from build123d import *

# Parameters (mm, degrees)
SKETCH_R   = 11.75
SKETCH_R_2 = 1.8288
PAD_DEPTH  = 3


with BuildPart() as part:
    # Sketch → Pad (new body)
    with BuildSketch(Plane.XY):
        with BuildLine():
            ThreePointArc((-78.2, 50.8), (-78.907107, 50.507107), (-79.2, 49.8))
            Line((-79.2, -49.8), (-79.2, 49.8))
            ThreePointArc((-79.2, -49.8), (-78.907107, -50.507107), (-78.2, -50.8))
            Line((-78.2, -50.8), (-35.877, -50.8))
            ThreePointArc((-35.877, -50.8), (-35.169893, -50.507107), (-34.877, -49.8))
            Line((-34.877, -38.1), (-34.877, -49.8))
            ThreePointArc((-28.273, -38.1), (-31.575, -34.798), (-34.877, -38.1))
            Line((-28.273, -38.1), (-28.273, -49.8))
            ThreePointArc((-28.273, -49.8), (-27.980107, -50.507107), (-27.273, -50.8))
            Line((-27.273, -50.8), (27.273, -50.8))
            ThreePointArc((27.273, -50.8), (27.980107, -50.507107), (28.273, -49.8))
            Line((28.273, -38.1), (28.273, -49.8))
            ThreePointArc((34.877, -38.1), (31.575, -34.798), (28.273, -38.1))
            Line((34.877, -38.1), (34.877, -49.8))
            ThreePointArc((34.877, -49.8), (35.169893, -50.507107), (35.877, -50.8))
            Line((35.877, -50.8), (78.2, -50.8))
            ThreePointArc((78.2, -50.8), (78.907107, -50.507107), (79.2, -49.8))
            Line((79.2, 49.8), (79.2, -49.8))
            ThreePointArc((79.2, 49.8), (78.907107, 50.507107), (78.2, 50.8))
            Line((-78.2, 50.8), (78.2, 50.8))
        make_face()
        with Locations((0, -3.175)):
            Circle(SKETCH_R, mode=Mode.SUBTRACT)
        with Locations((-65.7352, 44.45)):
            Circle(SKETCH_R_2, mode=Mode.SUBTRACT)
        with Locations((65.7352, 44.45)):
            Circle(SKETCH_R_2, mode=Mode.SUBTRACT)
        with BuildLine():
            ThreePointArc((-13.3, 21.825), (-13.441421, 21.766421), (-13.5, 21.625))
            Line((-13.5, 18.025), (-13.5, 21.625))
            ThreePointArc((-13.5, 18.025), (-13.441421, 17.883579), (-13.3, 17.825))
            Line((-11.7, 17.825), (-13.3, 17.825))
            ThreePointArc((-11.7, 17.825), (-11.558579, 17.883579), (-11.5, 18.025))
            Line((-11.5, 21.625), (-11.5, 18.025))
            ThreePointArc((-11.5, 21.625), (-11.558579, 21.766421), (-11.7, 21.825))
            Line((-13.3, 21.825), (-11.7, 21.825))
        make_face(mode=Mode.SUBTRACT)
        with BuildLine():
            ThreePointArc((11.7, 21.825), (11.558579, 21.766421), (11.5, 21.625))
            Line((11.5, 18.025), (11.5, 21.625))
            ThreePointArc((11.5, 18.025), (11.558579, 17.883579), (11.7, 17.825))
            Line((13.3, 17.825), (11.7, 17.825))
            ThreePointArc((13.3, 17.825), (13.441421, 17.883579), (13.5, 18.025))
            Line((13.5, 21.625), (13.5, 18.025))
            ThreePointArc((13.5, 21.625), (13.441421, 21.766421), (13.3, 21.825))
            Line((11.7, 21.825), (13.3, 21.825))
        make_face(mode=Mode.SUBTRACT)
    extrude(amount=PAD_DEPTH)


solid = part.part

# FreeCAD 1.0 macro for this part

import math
import FreeCAD as App
import Part
import Sketcher

V = App.Vector
Q = App.Units.Quantity

doc = App.newDocument("Part")
body = doc.addObject("PartDesign::Body", "Body")

sketch1 = body.newObject("Sketcher::SketchObject", "Sketch")
sketch1.AttachmentSupport = (doc.getObject("XY_Plane"), [""])
sketch1.MapMode = "FlatFace"
sketch1.addGeometry([
    Part.ArcOfCircle(Part.Circle(V(-78.200001, 49.800001, 0), V(0, 0, 1), 0.999999), math.radians(89.999957), math.radians(180.000043)),
    Part.LineSegment(V(-79.2, 49.8, 0), V(-79.2, -49.8, 0)),
    Part.ArcOfCircle(Part.Circle(V(-78.200001, -49.800001, 0), V(0, 0, 1), 0.999999), math.radians(179.999957), math.radians(270.000043)),
    Part.LineSegment(V(-78.2, -50.8, 0), V(-35.877, -50.8, 0)),
    Part.ArcOfCircle(Part.Circle(V(-35.876999, -49.800001, 0), V(0, 0, 1), 0.999999), math.radians(-90.000043), math.radians(0.000043)),
    Part.LineSegment(V(-34.877, -49.8, 0), V(-34.877, -38.1, 0)),
    Part.ArcOfCircle(Part.Circle(V(-31.575, -38.1, 0), V(0, 0, 1), 3.302), math.radians(0), math.radians(180)),
    Part.LineSegment(V(-28.273, -38.1, 0), V(-28.273, -49.8, 0)),
    Part.ArcOfCircle(Part.Circle(V(-27.273001, -49.800001, 0), V(0, 0, 1), 0.999999), math.radians(179.999957), math.radians(270.000043)),
    Part.LineSegment(V(-27.273, -50.8, 0), V(27.273, -50.8, 0)),
    Part.ArcOfCircle(Part.Circle(V(27.273001, -49.800001, 0), V(0, 0, 1), 0.999999), math.radians(-90.000043), math.radians(0.000043)),
    Part.LineSegment(V(28.273, -49.8, 0), V(28.273, -38.1, 0)),
    Part.ArcOfCircle(Part.Circle(V(31.575, -38.1, 0), V(0, 0, 1), 3.302), math.radians(0), math.radians(180)),
    Part.LineSegment(V(34.877, -38.1, 0), V(34.877, -49.8, 0)),
    Part.ArcOfCircle(Part.Circle(V(35.876999, -49.800001, 0), V(0, 0, 1), 0.999999), math.radians(179.999957), math.radians(270.000043)),
    Part.LineSegment(V(35.877, -50.8, 0), V(78.2, -50.8, 0)),
    Part.ArcOfCircle(Part.Circle(V(78.200001, -49.800001, 0), V(0, 0, 1), 0.999999), math.radians(-90.000043), math.radians(0.000043)),
    Part.LineSegment(V(79.2, -49.8, 0), V(79.2, 49.8, 0)),
    Part.ArcOfCircle(Part.Circle(V(78.200001, 49.800001, 0), V(0, 0, 1), 0.999999), math.radians(-0.000043), math.radians(90.000043)),
    Part.LineSegment(V(78.2, 50.8, 0), V(-78.2, 50.8, 0)),
    Part.Circle(V(0, -3.175, 0), V(0, 0, 1), 11.75),
    Part.ArcOfCircle(Part.Circle(V(-13.299999, 21.624999, 0), V(0, 0, 1), 0.200001), math.radians(90.000348), math.radians(179.999652)),
    Part.LineSegment(V(-13.3, 21.825, 0), V(-11.7, 21.825, 0)),
    Part.ArcOfCircle(Part.Circle(V(-11.700001, 21.624999, 0), V(0, 0, 1), 0.200001), math.radians(0.000348), math.radians(89.999652)),
    Part.LineSegment(V(-11.5, 21.625, 0), V(-11.5, 18.025, 0)),
    Part.ArcOfCircle(Part.Circle(V(-11.700001, 18.025001, 0), V(0, 0, 1), 0.200001), math.radians(-89.999652), math.radians(-0.000348)),
    Part.LineSegment(V(-11.7, 17.825, 0), V(-13.3, 17.825, 0)),
    Part.ArcOfCircle(Part.Circle(V(-13.299999, 18.025001, 0), V(0, 0, 1), 0.200001), math.radians(-179.999652), math.radians(-90.000348)),
    Part.LineSegment(V(-13.5, 18.025, 0), V(-13.5, 21.625, 0)),
    Part.Circle(V(-65.7352, 44.45, 0), V(0, 0, 1), 1.8288),
    Part.ArcOfCircle(Part.Circle(V(11.700001, 21.624999, 0), V(0, 0, 1), 0.200001), math.radians(90.000348), math.radians(179.999652)),
    Part.LineSegment(V(11.7, 21.825, 0), V(13.3, 21.825, 0)),
    Part.ArcOfCircle(Part.Circle(V(13.299999, 21.624999, 0), V(0, 0, 1), 0.200001), math.radians(0.000348), math.radians(89.999652)),
    Part.LineSegment(V(13.5, 21.625, 0), V(13.5, 18.025, 0)),
    Part.ArcOfCircle(Part.Circle(V(13.299999, 18.025001, 0), V(0, 0, 1), 0.200001), math.radians(-89.999652), math.radians(-0.000348)),
    Part.LineSegment(V(13.3, 17.825, 0), V(11.7, 17.825, 0)),
    Part.ArcOfCircle(Part.Circle(V(11.700001, 18.025001, 0), V(0, 0, 1), 0.200001), math.radians(-179.999652), math.radians(-90.000348)),
    Part.LineSegment(V(11.5, 18.025, 0), V(11.5, 21.625, 0)),
    Part.Circle(V(65.7352, 44.45, 0), V(0, 0, 1), 1.8288),
], False)
sketch1.addConstraint([
    Sketcher.Constraint("Tangent", 0, 2, 1, 1),
    Sketcher.Constraint("Tangent", 1, 2, 2, 1),
    Sketcher.Constraint("Tangent", 2, 2, 3, 1),
    Sketcher.Constraint("Tangent", 3, 2, 4, 1),
    Sketcher.Constraint("Tangent", 4, 2, 5, 1),
    Sketcher.Constraint("Tangent", 5, 2, 6, 2),
    Sketcher.Constraint("Tangent", 6, 1, 7, 1),
    Sketcher.Constraint("Tangent", 7, 2, 8, 1),
    Sketcher.Constraint("Tangent", 8, 2, 9, 1),
    Sketcher.Constraint("Tangent", 9, 2, 10, 1),
    Sketcher.Constraint("Tangent", 10, 2, 11, 1),
    Sketcher.Constraint("Tangent", 11, 2, 12, 2),
    Sketcher.Constraint("Tangent", 12, 1, 13, 1),
    Sketcher.Constraint("Tangent", 13, 2, 14, 1),
    Sketcher.Constraint("Tangent", 14, 2, 15, 1),
    Sketcher.Constraint("Tangent", 15, 2, 16, 1),
    Sketcher.Constraint("Tangent", 16, 2, 17, 1),
    Sketcher.Constraint("Tangent", 17, 2, 18, 1),
    Sketcher.Constraint("Tangent", 18, 2, 19, 1),
    Sketcher.Constraint("Tangent", 19, 2, 0, 1),
    Sketcher.Constraint("Coincident", 21, 1, 22, 1),
    Sketcher.Constraint("Coincident", 22, 2, 23, 2),
    Sketcher.Constraint("Coincident", 23, 1, 24, 1),
    Sketcher.Constraint("Coincident", 24, 2, 25, 2),
    Sketcher.Constraint("Coincident", 25, 1, 26, 1),
    Sketcher.Constraint("Coincident", 26, 2, 27, 2),
    Sketcher.Constraint("Coincident", 27, 1, 28, 1),
    Sketcher.Constraint("Coincident", 28, 2, 21, 2),
    Sketcher.Constraint("Coincident", 30, 1, 31, 1),
    Sketcher.Constraint("Coincident", 31, 2, 32, 2),
    Sketcher.Constraint("Coincident", 32, 1, 33, 1),
    Sketcher.Constraint("Coincident", 33, 2, 34, 2),
    Sketcher.Constraint("Coincident", 34, 1, 35, 1),
    Sketcher.Constraint("Coincident", 35, 2, 36, 2),
    Sketcher.Constraint("Coincident", 36, 1, 37, 1),
    Sketcher.Constraint("Coincident", 37, 2, 30, 2),
    Sketcher.Constraint("Vertical", 1),
    Sketcher.Constraint("Horizontal", 3),
    Sketcher.Constraint("Vertical", 5),
    Sketcher.Constraint("Vertical", 7),
    Sketcher.Constraint("Horizontal", 9),
    Sketcher.Constraint("Vertical", 11),
    Sketcher.Constraint("Vertical", 13),
    Sketcher.Constraint("Horizontal", 15),
    Sketcher.Constraint("Vertical", 17),
    Sketcher.Constraint("Horizontal", 19),
    Sketcher.Constraint("Horizontal", 22),
    Sketcher.Constraint("Vertical", 24),
    Sketcher.Constraint("Horizontal", 26),
    Sketcher.Constraint("Vertical", 28),
    Sketcher.Constraint("Horizontal", 31),
    Sketcher.Constraint("Vertical", 33),
    Sketcher.Constraint("Horizontal", 35),
    Sketcher.Constraint("Vertical", 37),
    Sketcher.Constraint("Equal", 0, 2),
    Sketcher.Constraint("Equal", 2, 4),
    Sketcher.Constraint("Equal", 4, 8),
    Sketcher.Constraint("Equal", 8, 10),
    Sketcher.Constraint("Equal", 6, 12),
    Sketcher.Constraint("Equal", 10, 14),
    Sketcher.Constraint("Equal", 14, 16),
    Sketcher.Constraint("Equal", 16, 18),
    Sketcher.Constraint("Equal", 21, 23),
    Sketcher.Constraint("Equal", 23, 25),
    Sketcher.Constraint("Equal", 25, 27),
    Sketcher.Constraint("Equal", 27, 30),
    Sketcher.Constraint("Equal", 30, 32),
    Sketcher.Constraint("Equal", 32, 34),
    Sketcher.Constraint("Equal", 34, 36),
    Sketcher.Constraint("Equal", 29, 38),
    Sketcher.Constraint("Symmetric", 0, 3, 16, 3, -1, 1),
    Sketcher.Constraint("Symmetric", 6, 3, 12, 3, -2),
    Sketcher.Constraint("Symmetric", 23, 3, 30, 3, -2),
    Sketcher.Constraint("Symmetric", 27, 3, 34, 3, -2),
    Sketcher.Constraint("Symmetric", 29, 3, 38, 3, -2),
    Sketcher.Constraint("PointOnObject", 20, 3, -2),
    Sketcher.Constraint("Horizontal", 4, 3, 8, 3),
    Sketcher.Constraint("Horizontal", 10, 3, 14, 3),
    Sketcher.Constraint("Horizontal", 32, 3, 23, 1),
    Sketcher.Constraint("Horizontal", 36, 3, 24, 2),
    Sketcher.Constraint("Horizontal", 24, 2, 27, 1),
    Sketcher.Constraint("Horizontal", 23, 1, 28, 2),
    Sketcher.Constraint("Horizontal", 28, 2, 32, 1),
    Sketcher.Constraint("Horizontal", 27, 1, 33, 2),
    Sketcher.Constraint("Horizontal", 33, 2, 36, 1),
    Sketcher.Constraint("Horizontal", 32, 1, 37, 2),
    Sketcher.Constraint("Vertical", 27, 3, 21, 1),
    Sketcher.Constraint("Vertical", 25, 3, 22, 2),
    Sketcher.Constraint("Vertical", 22, 2, 25, 1),
    Sketcher.Constraint("Vertical", 21, 1, 26, 2),
    Sketcher.Constraint("Vertical", 36, 3, 30, 1),
    Sketcher.Constraint("Vertical", 34, 3, 31, 2),
    Sketcher.Constraint("Vertical", 31, 2, 34, 1),
    Sketcher.Constraint("Vertical", 30, 1, 35, 2),
    Sketcher.Constraint("Radius", 0, Q("0.999999 mm")),
    Sketcher.Constraint("Diameter", 20, Q("23.5 mm")),
    Sketcher.Constraint("Radius", 21, Q("0.200001 mm")),
    Sketcher.Constraint("DistanceX", 19, 2, 19, 1, Q("156.4 mm")),
    Sketcher.Constraint("DistanceX", 22, 1, 22, 2, Q("1.6 mm")),
    Sketcher.Constraint("DistanceY", 1, 2, 1, 1, Q("99.6 mm")),
    Sketcher.Constraint("DistanceY", 5, 1, 5, 2, Q("11.7 mm")),
    Sketcher.Constraint("DistanceY", 24, 2, 24, 1, Q("3.6 mm")),
    Sketcher.Constraint("Radius", 6, Q("3.302 mm")),
    Sketcher.Constraint("DistanceX", 21, 3, 30, 3, Q("25 mm")),
    Sketcher.Constraint("Diameter", 29, Q("3.6576 mm")),
    Sketcher.Constraint("DistanceY", 20, 3, 21, 3, Q("24.799999 mm")),
    Sketcher.Constraint("DistanceX", 3, 1, 3, 2, Q("42.323 mm")),
    Sketcher.Constraint("DistanceY", -1, 1, 29, 3, Q("44.45 mm")),
    Sketcher.Constraint("DistanceY", 20, 3, -1, 1, Q("3.175 mm")),
    Sketcher.Constraint("DistanceX", 29, 3, -1, 1, Q("65.7352 mm")),
])
pad1 = body.newObject("PartDesign::Pad", "Pad")
pad1.Profile = sketch1
pad1.Length = 3

doc.recompute()
